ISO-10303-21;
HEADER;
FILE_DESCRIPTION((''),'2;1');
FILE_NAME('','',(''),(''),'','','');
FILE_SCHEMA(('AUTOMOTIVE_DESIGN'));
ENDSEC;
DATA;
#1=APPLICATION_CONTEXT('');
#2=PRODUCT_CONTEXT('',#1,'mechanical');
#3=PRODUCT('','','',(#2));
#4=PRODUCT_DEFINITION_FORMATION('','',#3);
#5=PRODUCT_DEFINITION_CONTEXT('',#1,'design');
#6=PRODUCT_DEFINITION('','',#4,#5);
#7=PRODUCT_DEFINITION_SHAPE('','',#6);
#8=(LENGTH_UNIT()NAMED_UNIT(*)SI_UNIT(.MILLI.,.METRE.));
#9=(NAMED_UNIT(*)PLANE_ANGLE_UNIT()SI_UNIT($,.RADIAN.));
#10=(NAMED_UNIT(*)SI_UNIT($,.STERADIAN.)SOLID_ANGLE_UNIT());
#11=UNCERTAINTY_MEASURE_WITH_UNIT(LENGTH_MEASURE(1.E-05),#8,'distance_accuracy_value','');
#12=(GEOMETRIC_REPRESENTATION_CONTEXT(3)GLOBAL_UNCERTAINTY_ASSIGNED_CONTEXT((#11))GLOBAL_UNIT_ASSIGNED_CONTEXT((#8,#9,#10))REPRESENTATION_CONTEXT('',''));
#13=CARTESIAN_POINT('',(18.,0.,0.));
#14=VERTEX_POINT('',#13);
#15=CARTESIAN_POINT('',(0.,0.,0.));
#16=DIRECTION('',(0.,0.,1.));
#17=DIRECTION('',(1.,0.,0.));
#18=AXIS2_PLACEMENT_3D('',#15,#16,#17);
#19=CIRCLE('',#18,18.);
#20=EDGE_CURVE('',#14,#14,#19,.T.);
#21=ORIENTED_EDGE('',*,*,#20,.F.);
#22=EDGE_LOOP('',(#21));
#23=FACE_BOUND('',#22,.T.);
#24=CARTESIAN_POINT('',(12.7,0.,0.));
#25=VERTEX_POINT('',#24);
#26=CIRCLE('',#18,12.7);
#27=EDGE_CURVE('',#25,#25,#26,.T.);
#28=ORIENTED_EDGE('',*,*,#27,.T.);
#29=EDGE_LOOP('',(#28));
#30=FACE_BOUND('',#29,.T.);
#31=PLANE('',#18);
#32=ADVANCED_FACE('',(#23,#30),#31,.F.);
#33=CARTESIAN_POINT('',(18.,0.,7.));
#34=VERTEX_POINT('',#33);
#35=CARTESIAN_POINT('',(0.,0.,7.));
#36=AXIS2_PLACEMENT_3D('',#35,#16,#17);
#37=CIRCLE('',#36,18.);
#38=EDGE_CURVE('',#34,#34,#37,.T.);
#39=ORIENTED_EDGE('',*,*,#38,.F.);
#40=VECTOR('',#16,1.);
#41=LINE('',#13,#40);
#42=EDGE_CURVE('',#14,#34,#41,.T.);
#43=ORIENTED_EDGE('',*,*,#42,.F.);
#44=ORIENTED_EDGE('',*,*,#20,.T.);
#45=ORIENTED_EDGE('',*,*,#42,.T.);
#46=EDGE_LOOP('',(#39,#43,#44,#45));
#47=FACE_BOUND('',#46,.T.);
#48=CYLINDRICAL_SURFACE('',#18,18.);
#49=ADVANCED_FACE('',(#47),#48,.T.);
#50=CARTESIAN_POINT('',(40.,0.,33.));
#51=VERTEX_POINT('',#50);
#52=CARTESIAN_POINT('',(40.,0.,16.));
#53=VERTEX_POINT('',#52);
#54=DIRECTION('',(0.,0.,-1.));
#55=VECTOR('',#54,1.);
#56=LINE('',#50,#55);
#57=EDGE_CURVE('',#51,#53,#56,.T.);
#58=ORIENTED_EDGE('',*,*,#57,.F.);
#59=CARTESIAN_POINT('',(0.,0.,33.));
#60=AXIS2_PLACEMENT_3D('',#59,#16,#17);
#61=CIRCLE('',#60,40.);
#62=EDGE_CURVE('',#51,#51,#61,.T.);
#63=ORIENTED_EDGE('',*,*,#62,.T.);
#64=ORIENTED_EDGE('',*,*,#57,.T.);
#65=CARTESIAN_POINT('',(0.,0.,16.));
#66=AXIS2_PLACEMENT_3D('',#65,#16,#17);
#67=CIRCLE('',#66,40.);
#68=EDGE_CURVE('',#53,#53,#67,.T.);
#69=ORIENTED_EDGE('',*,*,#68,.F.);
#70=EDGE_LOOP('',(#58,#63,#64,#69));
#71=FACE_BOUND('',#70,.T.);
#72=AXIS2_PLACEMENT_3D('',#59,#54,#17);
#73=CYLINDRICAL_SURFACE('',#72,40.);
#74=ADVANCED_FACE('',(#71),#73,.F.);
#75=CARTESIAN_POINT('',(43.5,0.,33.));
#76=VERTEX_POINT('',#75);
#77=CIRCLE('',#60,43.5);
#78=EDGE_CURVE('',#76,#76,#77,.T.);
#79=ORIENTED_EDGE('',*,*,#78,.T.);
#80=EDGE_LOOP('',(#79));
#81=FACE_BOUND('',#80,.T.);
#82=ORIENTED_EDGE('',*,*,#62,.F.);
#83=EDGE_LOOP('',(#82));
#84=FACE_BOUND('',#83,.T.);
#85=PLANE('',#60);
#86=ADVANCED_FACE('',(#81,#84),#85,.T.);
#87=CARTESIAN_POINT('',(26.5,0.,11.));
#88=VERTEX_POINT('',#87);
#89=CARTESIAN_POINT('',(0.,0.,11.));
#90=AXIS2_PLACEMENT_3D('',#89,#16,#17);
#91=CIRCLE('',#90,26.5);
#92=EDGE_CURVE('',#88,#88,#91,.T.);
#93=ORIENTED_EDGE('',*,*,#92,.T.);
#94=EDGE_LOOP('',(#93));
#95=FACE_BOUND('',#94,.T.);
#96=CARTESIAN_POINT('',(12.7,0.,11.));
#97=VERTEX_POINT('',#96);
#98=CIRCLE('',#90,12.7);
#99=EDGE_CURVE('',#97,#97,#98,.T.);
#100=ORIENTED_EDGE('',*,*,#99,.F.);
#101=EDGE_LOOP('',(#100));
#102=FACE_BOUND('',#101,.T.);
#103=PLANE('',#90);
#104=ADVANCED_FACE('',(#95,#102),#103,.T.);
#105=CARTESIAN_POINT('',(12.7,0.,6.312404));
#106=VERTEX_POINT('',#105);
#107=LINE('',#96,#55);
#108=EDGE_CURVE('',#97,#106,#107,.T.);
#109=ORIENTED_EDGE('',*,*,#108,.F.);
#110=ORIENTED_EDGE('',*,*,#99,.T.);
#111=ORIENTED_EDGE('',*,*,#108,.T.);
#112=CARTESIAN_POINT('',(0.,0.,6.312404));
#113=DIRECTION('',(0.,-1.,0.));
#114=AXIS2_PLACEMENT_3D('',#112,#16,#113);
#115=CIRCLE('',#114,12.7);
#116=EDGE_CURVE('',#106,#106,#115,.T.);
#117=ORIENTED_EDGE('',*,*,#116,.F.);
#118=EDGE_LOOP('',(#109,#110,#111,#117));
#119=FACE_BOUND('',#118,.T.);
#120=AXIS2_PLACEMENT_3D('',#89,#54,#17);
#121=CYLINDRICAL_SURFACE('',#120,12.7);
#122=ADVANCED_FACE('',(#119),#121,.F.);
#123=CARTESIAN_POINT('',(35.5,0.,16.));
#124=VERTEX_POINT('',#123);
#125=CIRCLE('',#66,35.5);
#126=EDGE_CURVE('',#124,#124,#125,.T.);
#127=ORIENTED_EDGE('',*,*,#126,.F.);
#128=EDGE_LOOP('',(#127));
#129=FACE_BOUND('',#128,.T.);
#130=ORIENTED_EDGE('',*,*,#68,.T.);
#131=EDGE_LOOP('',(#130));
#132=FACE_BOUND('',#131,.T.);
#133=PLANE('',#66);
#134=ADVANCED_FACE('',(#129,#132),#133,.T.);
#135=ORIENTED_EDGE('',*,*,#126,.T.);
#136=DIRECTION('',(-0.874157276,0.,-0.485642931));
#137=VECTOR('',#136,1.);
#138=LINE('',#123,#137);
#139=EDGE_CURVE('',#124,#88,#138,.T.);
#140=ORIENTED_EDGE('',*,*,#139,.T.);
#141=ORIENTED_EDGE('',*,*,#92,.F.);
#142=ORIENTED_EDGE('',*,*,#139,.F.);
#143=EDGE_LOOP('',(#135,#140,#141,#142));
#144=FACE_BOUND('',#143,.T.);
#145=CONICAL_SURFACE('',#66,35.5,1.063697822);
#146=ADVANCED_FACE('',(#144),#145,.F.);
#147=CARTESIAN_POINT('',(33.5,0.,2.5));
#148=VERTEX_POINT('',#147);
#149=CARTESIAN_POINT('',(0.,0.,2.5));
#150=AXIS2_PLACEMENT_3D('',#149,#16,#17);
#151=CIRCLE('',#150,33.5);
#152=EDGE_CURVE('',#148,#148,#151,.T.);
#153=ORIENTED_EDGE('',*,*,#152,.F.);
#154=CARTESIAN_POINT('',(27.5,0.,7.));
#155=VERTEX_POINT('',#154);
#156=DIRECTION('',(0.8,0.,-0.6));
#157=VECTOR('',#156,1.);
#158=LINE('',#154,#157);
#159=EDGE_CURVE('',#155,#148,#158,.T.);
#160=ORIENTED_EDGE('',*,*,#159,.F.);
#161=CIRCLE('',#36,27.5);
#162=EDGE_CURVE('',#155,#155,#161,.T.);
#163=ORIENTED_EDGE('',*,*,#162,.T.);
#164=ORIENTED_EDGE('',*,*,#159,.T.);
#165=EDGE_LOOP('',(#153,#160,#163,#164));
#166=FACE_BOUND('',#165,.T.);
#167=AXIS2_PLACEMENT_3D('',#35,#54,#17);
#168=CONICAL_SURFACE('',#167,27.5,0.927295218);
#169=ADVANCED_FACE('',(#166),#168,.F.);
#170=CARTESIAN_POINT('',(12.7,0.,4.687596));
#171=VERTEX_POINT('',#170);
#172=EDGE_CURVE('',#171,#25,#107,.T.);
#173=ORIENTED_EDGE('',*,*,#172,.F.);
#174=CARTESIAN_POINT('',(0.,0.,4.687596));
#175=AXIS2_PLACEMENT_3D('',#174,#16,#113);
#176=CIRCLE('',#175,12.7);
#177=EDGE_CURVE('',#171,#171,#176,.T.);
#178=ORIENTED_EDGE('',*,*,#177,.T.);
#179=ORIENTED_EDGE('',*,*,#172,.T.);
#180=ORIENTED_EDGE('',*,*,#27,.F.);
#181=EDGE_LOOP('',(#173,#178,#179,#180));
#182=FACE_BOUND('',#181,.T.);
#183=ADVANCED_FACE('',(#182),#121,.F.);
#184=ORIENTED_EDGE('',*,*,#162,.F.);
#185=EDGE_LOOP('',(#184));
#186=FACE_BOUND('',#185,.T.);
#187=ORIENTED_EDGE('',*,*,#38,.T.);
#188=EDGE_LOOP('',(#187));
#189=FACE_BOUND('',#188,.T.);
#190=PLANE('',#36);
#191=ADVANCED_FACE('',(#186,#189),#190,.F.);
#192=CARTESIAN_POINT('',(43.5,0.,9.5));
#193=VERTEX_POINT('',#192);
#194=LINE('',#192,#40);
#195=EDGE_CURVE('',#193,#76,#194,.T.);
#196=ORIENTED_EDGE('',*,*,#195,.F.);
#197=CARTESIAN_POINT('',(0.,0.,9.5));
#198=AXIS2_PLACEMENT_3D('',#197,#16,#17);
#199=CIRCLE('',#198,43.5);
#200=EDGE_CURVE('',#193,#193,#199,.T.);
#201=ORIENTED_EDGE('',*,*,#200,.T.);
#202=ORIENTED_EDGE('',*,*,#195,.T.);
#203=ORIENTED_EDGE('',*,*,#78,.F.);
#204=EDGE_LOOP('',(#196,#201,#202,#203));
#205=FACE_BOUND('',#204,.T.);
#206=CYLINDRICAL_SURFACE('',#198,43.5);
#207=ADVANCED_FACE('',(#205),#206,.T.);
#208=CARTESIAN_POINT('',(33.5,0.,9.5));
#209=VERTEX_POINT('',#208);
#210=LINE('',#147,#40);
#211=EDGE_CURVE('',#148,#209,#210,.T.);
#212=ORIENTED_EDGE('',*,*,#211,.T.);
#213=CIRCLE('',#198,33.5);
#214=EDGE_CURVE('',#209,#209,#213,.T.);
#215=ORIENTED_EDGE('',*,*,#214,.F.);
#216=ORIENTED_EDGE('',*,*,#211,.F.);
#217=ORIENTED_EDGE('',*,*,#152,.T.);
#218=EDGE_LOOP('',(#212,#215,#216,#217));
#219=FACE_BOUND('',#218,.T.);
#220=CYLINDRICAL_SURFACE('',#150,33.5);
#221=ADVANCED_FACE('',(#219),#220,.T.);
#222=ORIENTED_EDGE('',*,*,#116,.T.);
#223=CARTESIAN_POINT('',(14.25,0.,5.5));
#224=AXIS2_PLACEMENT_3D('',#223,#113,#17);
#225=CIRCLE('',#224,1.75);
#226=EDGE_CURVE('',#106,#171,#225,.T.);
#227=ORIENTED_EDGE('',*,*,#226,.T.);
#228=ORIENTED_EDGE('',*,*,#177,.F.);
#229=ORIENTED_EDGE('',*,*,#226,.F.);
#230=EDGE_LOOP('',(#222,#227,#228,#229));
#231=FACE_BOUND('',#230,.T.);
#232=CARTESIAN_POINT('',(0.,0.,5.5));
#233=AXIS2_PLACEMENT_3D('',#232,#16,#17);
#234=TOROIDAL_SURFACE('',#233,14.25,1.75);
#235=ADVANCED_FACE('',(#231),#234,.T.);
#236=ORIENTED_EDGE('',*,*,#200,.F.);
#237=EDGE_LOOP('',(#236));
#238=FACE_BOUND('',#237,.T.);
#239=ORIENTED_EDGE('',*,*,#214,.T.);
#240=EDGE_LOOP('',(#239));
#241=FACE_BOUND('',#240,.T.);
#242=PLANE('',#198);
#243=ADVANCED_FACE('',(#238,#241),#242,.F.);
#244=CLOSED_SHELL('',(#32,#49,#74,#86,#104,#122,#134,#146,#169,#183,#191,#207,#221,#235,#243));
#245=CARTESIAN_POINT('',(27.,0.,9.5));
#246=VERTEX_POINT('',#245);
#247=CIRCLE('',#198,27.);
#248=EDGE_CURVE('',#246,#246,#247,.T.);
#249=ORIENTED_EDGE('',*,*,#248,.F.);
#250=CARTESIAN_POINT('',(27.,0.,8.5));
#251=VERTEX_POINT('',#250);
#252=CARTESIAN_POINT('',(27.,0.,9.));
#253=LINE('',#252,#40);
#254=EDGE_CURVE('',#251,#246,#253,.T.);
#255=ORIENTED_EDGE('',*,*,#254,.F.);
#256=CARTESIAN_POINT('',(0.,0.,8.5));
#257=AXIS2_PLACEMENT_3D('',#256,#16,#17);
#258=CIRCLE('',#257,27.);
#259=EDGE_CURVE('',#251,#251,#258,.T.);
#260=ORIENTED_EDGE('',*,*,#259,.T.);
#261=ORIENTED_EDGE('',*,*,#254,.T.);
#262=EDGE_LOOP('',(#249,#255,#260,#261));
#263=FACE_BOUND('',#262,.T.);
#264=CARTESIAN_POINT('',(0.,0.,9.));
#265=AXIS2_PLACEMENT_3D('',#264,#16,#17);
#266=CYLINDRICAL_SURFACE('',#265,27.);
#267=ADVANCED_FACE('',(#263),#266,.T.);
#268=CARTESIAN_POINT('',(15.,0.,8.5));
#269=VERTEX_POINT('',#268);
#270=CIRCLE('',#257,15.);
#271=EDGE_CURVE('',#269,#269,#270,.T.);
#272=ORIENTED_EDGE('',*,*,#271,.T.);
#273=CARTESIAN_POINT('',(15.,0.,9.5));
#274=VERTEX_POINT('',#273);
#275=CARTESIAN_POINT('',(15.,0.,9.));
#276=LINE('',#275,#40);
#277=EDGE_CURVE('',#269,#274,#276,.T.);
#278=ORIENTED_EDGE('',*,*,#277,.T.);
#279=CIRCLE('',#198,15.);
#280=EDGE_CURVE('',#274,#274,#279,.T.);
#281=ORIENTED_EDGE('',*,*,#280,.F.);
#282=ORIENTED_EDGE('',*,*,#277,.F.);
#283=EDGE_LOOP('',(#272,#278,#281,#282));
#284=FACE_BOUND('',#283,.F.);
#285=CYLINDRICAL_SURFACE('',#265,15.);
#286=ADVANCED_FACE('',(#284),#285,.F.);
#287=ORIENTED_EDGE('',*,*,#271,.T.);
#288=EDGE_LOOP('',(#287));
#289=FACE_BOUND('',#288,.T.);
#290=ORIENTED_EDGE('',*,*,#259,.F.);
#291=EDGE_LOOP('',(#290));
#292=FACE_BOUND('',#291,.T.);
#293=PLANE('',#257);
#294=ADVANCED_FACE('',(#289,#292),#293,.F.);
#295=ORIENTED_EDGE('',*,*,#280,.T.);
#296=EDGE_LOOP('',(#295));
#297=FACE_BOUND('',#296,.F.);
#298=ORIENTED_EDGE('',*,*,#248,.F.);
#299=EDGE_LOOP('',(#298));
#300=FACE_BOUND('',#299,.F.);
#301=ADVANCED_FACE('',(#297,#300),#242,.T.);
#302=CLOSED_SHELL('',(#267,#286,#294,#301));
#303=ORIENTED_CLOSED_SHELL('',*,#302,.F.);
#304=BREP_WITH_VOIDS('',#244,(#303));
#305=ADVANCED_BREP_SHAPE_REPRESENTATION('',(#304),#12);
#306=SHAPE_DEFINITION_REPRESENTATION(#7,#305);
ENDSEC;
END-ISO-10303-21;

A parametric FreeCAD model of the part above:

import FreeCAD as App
import Part
import Sketcher

doc = App.newDocument("Part")
body = doc.addObject("PartDesign::Body", "Body")

# Sketch on XZ plane
sketch1 = body.newObject("Sketcher::SketchObject", "Sketch")
sketch1.AttachmentSupport = (doc.getObject("XZ_Plane"), [""])
sketch1.MapMode = "FlatFace"
sketch1.addGeometry([
    Part.LineSegment(App.Vector(12.7, 0, 0), App.Vector(18, 0, 0)),  # 0
    Part.LineSegment(App.Vector(18, 0, 0), App.Vector(18, 7, 0)),  # 1
    Part.LineSegment(App.Vector(18, 7, 0), App.Vector(27.5, 7, 0)),  # 2
    Part.LineSegment(App.Vector(27.5, 7, 0), App.Vector(33.5, 2.5, 0)),  # 3
    Part.LineSegment(App.Vector(33.5, 2.5, 0), App.Vector(33.5, 9.5, 0)),  # 4
    Part.LineSegment(App.Vector(33.5, 9.5, 0), App.Vector(43.5, 9.5, 0)),  # 5
    Part.LineSegment(App.Vector(43.5, 9.5, 0), App.Vector(43.5, 33, 0)),  # 6
    Part.LineSegment(App.Vector(43.5, 33, 0), App.Vector(40, 33, 0)),  # 7
    Part.LineSegment(App.Vector(40, 33, 0), App.Vector(40, 16, 0)),  # 8
    Part.LineSegment(App.Vector(40, 16, 0), App.Vector(35.5, 16, 0)),  # 9
    Part.LineSegment(App.Vector(35.5, 16, 0), App.Vector(26.5, 11, 0)),  # 10
    Part.LineSegment(App.Vector(26.5, 11, 0), App.Vector(12.7, 11, 0)),  # 11
    Part.LineSegment(App.Vector(12.7, 11, 0), App.Vector(12.7, 0, 0)),  # 12
], False)
sketch1.addConstraint([
    Sketcher.Constraint("Coincident", 0, 2, 1, 1),
    Sketcher.Constraint("Coincident", 1, 2, 2, 1),
    Sketcher.Constraint("Coincident", 2, 2, 3, 1),
    Sketcher.Constraint("Coincident", 3, 2, 4, 1),
    Sketcher.Constraint("Coincident", 4, 2, 5, 1),
    Sketcher.Constraint("Coincident", 5, 2, 6, 1),
    Sketcher.Constraint("Coincident", 6, 2, 7, 1),
    Sketcher.Constraint("Coincident", 7, 2, 8, 1),
    Sketcher.Constraint("Coincident", 8, 2, 9, 1),
    Sketcher.Constraint("Coincident", 9, 2, 10, 1),
    Sketcher.Constraint("Coincident", 10, 2, 11, 1),
    Sketcher.Constraint("Coincident", 11, 2, 12, 1),
    Sketcher.Constraint("Coincident", 12, 2, 0, 1),
    Sketcher.Constraint("Horizontal", 0),
    Sketcher.Constraint("Vertical", 1),
    Sketcher.Constraint("Horizontal", 2),
    Sketcher.Constraint("Vertical", 4),
    Sketcher.Constraint("Horizontal", 5),
    Sketcher.Constraint("Vertical", 6),
    Sketcher.Constraint("Horizontal", 7),
    Sketcher.Constraint("Vertical", 8),
    Sketcher.Constraint("Horizontal", 9),
    Sketcher.Constraint("Horizontal", 11),
    Sketcher.Constraint("Vertical", 12),
    Sketcher.Constraint("PointOnObject", 0, 2, -1),
    Sketcher.Constraint("Equal", 1, 4),
    Sketcher.Constraint("DistanceX", 5, 1, 5, 2, 10.0),
    Sketcher.Constraint("DistanceY", 1, 1, 1, 2, 7.0),
    Sketcher.Constraint("DistanceY", 8, 2, 8, 1, 17.0),
    Sketcher.Constraint("DistanceY", 12, 2, 12, 1, 11.0),
    Sketcher.Constraint("DistanceX", 0, 1, 0, 2, 5.3),
    Sketcher.Constraint("DistanceX", 2, 1, 2, 2, 9.5),
    Sketcher.Constraint("DistanceX", 7, 2, 7, 1, 3.5),
    Sketcher.Constraint("DistanceX", 9, 2, 9, 1, 4.5),
    Sketcher.Constraint("DistanceX", 11, 2, 11, 1, 13.8),
    Sketcher.Constraint("DistanceY", 6, 1, 6, 2, 23.5),
    Sketcher.Constraint("DistanceX", -1, 1, 0, 2, 18.0),
    Sketcher.Constraint("DistanceY", -1, 1, 6, 2, 33.0),
    Sketcher.Constraint("DistanceX", -1, 1, 7, 2, 40.0),
])
revolution = body.newObject("PartDesign::Revolution", "Revolution")
revolution.Profile = sketch1
revolution.ReferenceAxis = (sketch1, ["V_Axis"])
revolution.Angle = 360

# Sketch on XZ plane
sketch2 = body.newObject("Sketcher::SketchObject", "Sketch001")
sketch2.AttachmentSupport = (doc.getObject("XZ_Plane"), [""])
sketch2.MapMode = "FlatFace"
sketch2.addGeometry(Part.Circle(App.Vector(14.25, 5.5, 0), App.Vector(0, 0, 1), 1.75), False)
sketch2.addConstraint([
    Sketcher.Constraint("Diameter", 0, 3.5),
    Sketcher.Constraint("DistanceY", -1, 1, 0, 3, 5.5),
    Sketcher.Constraint("DistanceX", -1, 1, 0, 3, 14.25),
])
revolution2 = body.newObject("PartDesign::Revolution", "Revolution001")
revolution2.Profile = sketch2
revolution2.ReferenceAxis = (sketch2, ["V_Axis"])
revolution2.Angle = 360

# Sketch on XZ plane
sketch3 = body.newObject("Sketcher::SketchObject", "Sketch002")
sketch3.AttachmentSupport = (doc.getObject("XZ_Plane"), [""])
sketch3.MapMode = "FlatFace"
sketch3.addGeometry([
    Part.LineSegment(App.Vector(15, 9.5, 0), App.Vector(15, 8.5, 0)),
    Part.LineSegment(App.Vector(15, 8.5, 0), App.Vector(27, 8.5, 0)),
    Part.LineSegment(App.Vector(27, 8.5, 0), App.Vector(27, 9.5, 0)),
    Part.LineSegment(App.Vector(27, 9.5, 0), App.Vector(15, 9.5, 0)),
], False)
sketch3.addConstraint([
    Sketcher.Constraint("Coincident", 0, 2, 1, 1),
    Sketcher.Constraint("Coincident", 1, 2, 2, 1),
    Sketcher.Constraint("Coincident", 2, 2, 3, 1),
    Sketcher.Constraint("Coincident", 3, 2, 0, 1),
    Sketcher.Constraint("Vertical", 0),
    Sketcher.Constraint("Horizontal", 1),
    Sketcher.Constraint("Vertical", 2),
    Sketcher.Constraint("Horizontal", 3),
    Sketcher.Constraint("DistanceX", 1, 1, 1, 2, 12.0),
    Sketcher.Constraint("DistanceY", 0, 2, 0, 1, 1.0),
    Sketcher.Constraint("DistanceX", -1, 1, 0, 2, 15.0),
    Sketcher.Constraint("DistanceY", -1, 1, 0, 2, 8.5),
])
groove = body.newObject("PartDesign::Groove", "Groove")
groove.Profile = sketch3
groove.ReferenceAxis = (sketch3, ["V_Axis"])
groove.Angle = 360

doc.recompute()
